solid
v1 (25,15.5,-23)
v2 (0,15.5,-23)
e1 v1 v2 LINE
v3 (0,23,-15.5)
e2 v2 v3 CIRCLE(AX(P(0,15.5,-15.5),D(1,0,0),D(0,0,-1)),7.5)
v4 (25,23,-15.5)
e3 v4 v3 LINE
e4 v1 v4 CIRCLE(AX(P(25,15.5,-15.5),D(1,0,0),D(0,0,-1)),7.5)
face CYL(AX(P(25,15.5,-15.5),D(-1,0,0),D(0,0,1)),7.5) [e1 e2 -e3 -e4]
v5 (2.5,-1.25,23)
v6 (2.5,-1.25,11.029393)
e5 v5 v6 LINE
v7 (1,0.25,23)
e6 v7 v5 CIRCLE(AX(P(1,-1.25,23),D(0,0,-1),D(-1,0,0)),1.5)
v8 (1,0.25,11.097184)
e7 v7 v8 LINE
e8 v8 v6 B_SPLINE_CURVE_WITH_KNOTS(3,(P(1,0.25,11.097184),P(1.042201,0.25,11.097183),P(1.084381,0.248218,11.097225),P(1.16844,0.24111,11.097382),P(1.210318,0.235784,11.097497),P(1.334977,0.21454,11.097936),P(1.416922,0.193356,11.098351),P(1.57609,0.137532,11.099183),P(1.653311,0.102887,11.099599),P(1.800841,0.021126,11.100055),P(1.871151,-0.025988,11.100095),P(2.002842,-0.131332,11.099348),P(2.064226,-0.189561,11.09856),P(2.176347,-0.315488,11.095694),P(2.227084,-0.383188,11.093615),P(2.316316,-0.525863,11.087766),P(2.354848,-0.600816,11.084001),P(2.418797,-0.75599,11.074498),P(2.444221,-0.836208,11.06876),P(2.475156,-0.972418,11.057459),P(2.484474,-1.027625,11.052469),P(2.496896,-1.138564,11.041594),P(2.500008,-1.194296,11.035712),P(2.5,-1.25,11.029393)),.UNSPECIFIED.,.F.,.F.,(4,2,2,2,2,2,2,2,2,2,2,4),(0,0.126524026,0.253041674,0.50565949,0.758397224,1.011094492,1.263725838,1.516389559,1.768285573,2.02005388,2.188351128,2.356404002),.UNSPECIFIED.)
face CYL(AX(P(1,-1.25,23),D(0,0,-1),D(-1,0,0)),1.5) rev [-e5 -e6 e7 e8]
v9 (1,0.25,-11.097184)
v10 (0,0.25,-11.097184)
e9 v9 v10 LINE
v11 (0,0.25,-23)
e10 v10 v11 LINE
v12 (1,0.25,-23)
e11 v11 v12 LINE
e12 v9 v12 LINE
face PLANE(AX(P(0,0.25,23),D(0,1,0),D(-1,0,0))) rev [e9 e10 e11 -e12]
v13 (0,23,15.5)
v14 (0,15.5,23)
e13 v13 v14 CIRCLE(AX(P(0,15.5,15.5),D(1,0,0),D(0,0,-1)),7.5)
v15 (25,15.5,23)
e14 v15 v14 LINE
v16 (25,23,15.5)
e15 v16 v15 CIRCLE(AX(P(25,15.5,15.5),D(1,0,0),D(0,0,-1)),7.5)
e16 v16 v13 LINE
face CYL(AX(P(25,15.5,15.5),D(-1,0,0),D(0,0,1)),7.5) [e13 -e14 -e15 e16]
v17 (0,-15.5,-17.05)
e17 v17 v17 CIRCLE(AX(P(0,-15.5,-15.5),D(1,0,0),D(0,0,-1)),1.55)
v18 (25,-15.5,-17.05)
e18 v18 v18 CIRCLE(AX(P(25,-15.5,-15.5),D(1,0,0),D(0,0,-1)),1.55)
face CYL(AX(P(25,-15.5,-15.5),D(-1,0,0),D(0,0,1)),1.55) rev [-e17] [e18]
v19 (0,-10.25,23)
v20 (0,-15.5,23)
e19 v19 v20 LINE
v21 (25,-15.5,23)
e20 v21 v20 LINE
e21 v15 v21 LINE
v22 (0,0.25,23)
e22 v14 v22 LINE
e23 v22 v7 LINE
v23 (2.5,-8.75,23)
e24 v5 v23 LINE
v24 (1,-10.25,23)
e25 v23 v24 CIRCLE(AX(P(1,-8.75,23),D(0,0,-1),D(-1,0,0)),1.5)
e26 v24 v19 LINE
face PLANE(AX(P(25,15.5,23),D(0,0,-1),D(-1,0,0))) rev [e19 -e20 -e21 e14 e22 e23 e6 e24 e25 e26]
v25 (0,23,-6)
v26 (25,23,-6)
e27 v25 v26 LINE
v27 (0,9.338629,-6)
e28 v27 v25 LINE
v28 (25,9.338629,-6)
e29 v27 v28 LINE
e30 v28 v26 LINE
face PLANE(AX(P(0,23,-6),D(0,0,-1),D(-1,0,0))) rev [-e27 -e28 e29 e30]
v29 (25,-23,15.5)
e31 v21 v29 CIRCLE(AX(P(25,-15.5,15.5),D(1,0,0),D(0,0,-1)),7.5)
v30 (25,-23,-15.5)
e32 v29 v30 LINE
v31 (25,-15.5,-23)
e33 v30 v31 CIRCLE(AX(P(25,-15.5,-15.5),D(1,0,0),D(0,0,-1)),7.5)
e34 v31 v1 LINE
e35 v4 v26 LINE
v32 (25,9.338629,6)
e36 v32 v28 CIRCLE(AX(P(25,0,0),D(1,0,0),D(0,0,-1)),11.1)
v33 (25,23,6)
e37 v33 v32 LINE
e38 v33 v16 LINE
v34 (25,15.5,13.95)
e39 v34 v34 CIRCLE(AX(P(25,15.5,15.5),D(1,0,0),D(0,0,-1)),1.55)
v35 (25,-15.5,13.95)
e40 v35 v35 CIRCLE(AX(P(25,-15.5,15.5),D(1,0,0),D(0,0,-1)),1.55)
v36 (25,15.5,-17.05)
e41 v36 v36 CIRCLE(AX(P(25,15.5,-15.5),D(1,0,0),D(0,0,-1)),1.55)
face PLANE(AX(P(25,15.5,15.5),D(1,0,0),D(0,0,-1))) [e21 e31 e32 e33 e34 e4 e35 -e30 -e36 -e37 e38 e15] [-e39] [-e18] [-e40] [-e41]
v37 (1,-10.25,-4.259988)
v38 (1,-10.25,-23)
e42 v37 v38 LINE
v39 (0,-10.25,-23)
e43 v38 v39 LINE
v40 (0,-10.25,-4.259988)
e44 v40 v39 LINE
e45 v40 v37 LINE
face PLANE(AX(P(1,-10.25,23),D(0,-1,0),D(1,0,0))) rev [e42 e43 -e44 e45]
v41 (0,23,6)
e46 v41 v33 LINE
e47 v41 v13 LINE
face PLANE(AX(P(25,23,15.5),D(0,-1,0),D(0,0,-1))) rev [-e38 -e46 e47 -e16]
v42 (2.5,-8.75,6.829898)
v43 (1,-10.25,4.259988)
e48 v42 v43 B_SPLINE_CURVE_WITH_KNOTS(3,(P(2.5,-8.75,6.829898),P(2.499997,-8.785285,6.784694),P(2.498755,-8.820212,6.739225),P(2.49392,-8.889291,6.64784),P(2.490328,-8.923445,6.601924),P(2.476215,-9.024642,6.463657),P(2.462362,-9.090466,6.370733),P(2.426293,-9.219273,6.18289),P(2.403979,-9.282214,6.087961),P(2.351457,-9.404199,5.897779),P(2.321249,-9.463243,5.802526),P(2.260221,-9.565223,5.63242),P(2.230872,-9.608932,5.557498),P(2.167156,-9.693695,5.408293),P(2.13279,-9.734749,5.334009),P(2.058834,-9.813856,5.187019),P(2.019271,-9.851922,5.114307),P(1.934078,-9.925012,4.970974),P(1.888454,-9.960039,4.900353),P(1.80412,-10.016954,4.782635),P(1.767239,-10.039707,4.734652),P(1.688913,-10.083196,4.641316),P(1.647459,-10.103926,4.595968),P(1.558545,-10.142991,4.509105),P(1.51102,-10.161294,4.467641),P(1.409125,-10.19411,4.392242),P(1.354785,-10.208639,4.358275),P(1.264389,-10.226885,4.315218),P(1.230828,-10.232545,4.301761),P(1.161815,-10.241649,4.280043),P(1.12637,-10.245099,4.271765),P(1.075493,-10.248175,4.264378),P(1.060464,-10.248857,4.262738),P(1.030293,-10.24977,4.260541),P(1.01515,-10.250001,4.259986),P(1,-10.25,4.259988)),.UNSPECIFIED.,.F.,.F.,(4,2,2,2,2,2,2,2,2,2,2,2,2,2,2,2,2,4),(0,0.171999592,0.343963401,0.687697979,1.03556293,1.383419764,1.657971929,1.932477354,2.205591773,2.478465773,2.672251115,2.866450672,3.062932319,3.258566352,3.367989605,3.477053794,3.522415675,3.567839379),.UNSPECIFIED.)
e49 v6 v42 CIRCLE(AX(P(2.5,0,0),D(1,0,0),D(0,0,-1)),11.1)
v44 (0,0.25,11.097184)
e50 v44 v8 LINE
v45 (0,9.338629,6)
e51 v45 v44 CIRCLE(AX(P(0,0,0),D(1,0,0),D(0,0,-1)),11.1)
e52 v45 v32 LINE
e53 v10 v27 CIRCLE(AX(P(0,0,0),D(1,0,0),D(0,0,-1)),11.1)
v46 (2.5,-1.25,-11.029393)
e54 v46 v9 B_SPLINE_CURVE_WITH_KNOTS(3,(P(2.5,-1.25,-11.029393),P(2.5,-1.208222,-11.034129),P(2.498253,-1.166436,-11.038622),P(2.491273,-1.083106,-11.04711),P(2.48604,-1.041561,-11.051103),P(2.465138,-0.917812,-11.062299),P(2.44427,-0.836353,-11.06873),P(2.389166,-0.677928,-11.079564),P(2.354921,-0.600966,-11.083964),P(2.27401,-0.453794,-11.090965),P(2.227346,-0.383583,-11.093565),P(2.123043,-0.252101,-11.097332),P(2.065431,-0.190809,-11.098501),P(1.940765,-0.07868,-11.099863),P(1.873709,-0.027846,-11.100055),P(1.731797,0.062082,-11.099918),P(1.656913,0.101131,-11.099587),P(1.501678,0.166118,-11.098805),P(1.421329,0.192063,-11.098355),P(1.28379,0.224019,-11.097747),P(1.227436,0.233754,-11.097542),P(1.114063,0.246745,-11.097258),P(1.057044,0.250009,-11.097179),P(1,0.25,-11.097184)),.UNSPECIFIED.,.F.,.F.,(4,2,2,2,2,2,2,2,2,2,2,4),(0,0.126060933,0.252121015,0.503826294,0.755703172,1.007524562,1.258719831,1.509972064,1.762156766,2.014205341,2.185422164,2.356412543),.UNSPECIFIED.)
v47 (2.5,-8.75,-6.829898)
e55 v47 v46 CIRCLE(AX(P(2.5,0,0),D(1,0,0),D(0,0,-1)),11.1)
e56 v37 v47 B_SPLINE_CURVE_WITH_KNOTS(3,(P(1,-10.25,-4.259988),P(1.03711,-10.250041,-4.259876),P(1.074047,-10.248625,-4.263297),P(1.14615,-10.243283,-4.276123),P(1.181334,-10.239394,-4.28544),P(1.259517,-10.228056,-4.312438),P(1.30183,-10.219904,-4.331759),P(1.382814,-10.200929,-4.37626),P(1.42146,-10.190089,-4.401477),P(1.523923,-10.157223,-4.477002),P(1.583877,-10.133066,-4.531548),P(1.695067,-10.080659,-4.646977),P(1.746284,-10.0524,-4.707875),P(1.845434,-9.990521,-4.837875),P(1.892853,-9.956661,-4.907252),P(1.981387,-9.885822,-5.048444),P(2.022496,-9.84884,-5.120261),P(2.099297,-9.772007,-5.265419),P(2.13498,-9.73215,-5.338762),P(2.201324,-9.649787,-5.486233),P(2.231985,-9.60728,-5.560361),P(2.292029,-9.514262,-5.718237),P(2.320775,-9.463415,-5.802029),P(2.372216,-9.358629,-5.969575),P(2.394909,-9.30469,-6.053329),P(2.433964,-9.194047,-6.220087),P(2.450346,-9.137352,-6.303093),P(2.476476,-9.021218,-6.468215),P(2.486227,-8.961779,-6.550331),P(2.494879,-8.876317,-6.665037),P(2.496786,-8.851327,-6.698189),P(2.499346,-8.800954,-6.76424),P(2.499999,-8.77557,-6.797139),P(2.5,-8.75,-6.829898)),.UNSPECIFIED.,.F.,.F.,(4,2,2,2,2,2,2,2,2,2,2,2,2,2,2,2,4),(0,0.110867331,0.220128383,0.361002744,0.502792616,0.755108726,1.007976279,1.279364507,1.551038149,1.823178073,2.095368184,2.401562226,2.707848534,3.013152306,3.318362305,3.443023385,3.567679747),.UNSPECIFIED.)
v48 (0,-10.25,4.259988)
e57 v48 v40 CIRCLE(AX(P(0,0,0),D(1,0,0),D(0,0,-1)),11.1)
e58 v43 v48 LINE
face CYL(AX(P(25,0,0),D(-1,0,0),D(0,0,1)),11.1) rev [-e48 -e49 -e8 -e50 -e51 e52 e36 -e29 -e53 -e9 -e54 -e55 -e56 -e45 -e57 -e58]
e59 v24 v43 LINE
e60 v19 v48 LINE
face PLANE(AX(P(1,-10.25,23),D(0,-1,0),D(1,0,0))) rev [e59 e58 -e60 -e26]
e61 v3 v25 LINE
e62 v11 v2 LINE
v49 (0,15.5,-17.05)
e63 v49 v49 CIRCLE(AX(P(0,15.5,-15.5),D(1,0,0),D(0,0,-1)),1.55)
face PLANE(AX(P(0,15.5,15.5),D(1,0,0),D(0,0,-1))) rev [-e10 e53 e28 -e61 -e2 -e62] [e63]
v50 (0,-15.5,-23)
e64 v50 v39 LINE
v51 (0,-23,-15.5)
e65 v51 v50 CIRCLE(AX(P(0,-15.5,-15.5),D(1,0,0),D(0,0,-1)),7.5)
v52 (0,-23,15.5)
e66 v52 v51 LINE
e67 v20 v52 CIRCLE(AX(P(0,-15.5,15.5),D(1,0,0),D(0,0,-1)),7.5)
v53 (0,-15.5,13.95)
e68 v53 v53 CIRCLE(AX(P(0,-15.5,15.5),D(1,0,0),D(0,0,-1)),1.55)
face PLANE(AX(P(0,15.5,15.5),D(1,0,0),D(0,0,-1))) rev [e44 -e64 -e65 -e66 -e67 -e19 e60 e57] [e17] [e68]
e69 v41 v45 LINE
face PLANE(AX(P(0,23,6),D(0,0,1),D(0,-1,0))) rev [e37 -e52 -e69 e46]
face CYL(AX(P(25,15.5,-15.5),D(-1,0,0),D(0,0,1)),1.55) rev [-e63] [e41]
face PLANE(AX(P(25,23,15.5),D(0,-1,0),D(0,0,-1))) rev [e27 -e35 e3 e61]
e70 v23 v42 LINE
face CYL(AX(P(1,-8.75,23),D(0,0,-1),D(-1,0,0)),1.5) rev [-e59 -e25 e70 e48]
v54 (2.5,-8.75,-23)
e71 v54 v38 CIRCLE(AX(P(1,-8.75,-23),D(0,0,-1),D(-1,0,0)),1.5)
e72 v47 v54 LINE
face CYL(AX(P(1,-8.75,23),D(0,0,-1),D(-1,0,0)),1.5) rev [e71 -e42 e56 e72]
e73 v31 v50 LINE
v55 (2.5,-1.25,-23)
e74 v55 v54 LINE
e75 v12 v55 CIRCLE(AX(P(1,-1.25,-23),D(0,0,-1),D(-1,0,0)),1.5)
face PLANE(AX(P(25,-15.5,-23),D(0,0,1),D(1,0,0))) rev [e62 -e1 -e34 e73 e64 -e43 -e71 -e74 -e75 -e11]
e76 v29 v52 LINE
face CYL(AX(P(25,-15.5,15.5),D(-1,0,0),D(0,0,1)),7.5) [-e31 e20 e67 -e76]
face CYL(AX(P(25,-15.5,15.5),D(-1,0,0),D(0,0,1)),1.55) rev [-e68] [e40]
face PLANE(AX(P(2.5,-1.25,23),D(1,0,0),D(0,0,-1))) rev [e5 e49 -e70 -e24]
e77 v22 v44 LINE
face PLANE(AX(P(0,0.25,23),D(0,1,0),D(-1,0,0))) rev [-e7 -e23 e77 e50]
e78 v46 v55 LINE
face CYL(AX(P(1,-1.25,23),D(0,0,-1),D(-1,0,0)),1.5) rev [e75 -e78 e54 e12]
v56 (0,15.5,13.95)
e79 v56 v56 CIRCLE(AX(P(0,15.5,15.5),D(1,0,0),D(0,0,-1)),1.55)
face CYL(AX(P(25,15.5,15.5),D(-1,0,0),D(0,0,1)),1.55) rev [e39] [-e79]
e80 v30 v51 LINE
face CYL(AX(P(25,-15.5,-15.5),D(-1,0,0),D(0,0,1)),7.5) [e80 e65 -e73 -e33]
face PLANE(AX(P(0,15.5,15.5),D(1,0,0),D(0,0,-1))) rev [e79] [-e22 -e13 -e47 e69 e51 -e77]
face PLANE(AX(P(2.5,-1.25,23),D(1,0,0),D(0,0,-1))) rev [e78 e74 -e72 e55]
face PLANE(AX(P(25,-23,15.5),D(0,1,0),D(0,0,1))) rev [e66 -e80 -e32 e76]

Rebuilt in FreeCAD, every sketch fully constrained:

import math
import FreeCAD as App
import Part
import Sketcher
from FreeCAD import Vector
Q = App.Units.Quantity

doc = App.newDocument("Part")
body = doc.addObject("PartDesign::Body", "Body")

# Sketch on YZ plane
sketch1 = body.newObject("Sketcher::SketchObject", "Sketch")
sketch1.AttachmentSupport = (doc.getObject("YZ_Plane"), [""])
sketch1.MapMode = "FlatFace"
sketch1.addGeometry(Part.LineSegment(Vector(23, -15.5, 0), Vector(23, 15.5, 0)), False)
sketch1.addGeometry(Part.ArcOfCircle(Part.Circle(Vector(15.5, 15.5, 0), Vector(0, 0, 1), 7.5), math.radians(0), math.radians(90)), False)
sketch1.addGeometry(Part.LineSegment(Vector(15.5, 23, 0), Vector(-15.5, 23, 0)), False)
sketch1.addGeometry(Part.ArcOfCircle(Part.Circle(Vector(-15.5, 15.5, 0), Vector(0, 0, 1), 7.5), math.radians(90), math.radians(180)), False)
sketch1.addGeometry(Part.LineSegment(Vector(-23, 15.5, 0), Vector(-23, -15.5, 0)), False)
sketch1.addGeometry(Part.ArcOfCircle(Part.Circle(Vector(-15.5, -15.5, 0), Vector(0, 0, 1), 7.5), math.radians(180), math.radians(270)), False)
sketch1.addGeometry(Part.LineSegment(Vector(-15.5, -23, 0), Vector(15.5, -23, 0)), False)
sketch1.addGeometry(Part.ArcOfCircle(Part.Circle(Vector(15.5, -15.5, 0), Vector(0, 0, 1), 7.5), math.radians(-90), math.radians(0)), False)
sketch1.addGeometry(Part.Circle(Vector(-15.5, -15.5, 0), Vector(0, 0, 1), 1.6), False)
sketch1.addGeometry(Part.Circle(Vector(-15.5, 15.5, 0), Vector(0, 0, 1), 1.6), False)
sketch1.addGeometry(Part.Circle(Vector(15.5, -15.5, 0), Vector(0, 0, 1), 1.6), False)
sketch1.addGeometry(Part.Circle(Vector(0, 0, 0), Vector(0, 0, 1), 11.1), False)
sketch1.addGeometry(Part.Circle(Vector(15.5, 15.5, 0), Vector(0, 0, 1), 1.6), False)
sketch1.addConstraint(Sketcher.Constraint("Tangent", 0, 2, 1, 1))
sketch1.addConstraint(Sketcher.Constraint("Tangent", 1, 2, 2, 1))
sketch1.addConstraint(Sketcher.Constraint("Tangent", 2, 2, 3, 1))
sketch1.addConstraint(Sketcher.Constraint("Tangent", 3, 2, 4, 1))
sketch1.addConstraint(Sketcher.Constraint("Tangent", 4, 2, 5, 1))
sketch1.addConstraint(Sketcher.Constraint("Tangent", 5, 2, 6, 1))
sketch1.addConstraint(Sketcher.Constraint("Tangent", 6, 2, 7, 1))
sketch1.addConstraint(Sketcher.Constraint("Tangent", 7, 2, 0, 1))
sketch1.addConstraint(Sketcher.Constraint("Vertical", 0))
sketch1.addConstraint(Sketcher.Constraint("Horizontal", 2))
sketch1.addConstraint(Sketcher.Constraint("Vertical", 4))
sketch1.addConstraint(Sketcher.Constraint("Horizontal", 6))
sketch1.addConstraint(Sketcher.Constraint("Coincident", 11, 3, -1, 1))
sketch1.addConstraint(Sketcher.Constraint("Coincident", 8, 3, 5, 3))
sketch1.addConstraint(Sketcher.Constraint("Coincident", 9, 3, 3, 3))
sketch1.addConstraint(Sketcher.Constraint("Coincident", 10, 3, 7, 3))
sketch1.addConstraint(Sketcher.Constraint("Coincident", 12, 3, 1, 3))
sketch1.addConstraint(Sketcher.Constraint("Equal", 1, 3))
sketch1.addConstraint(Sketcher.Constraint("Equal", 3, 5))
sketch1.addConstraint(Sketcher.Constraint("Equal", 5, 7))
sketch1.addConstraint(Sketcher.Constraint("Equal", 8, 9))
sketch1.addConstraint(Sketcher.Constraint("Equal", 9, 10))
sketch1.addConstraint(Sketcher.Constraint("Equal", 10, 12))
sketch1.addConstraint(Sketcher.Constraint("Symmetric", 1, 3, 5, 3, -1, 1))
sketch1.addConstraint(Sketcher.Constraint("Equal", 6, 0))
sketch1.addConstraint(Sketcher.Constraint("Diameter", 8, Q("3.1 mm")))
sketch1.addConstraint(Sketcher.Constraint("Diameter", 11, Q("22.2 mm")))
sketch1.addConstraint(Sketcher.Constraint("Radius", 1, Q("7.5 mm")))
sketch1.addConstraint(Sketcher.Constraint("DistanceX", 2, 2, 2, 1, Q("31 mm")))
pad1 = body.newObject("PartDesign::Pad", "Pad")
pad1.Profile = sketch1
pad1.Length = 25

# Sketch on YZ plane
sketch2 = body.newObject("Sketcher::SketchObject", "Sketch001")
sketch2.AttachmentSupport = (doc.getObject("YZ_Plane"), [""])
sketch2.MapMode = "FlatFace"
sketch2.AttachmentOffset = App.Placement(Vector(0, 0, 25), App.Rotation())
sketch2.addGeometry(Part.LineSegment(Vector(23, 6, 0), Vector(9, 6, 0)), False)
sketch2.addGeometry(Part.ArcOfCircle(Part.Circle(Vector(0, 0, 0), Vector(0, 0, 1), 11), math.radians(-33), math.radians(33)), False)
sketch2.addGeometry(Part.LineSegment(Vector(9, -6, 0), Vector(23, -6, 0)), False)
sketch2.addGeometry(Part.LineSegment(Vector(23, -6, 0), Vector(23, 6, 0)), False)
sketch2.addConstraint(Sketcher.Constraint("Coincident", 0, 2, 1, 2))
sketch2.addConstraint(Sketcher.Constraint("Coincident", 1, 1, 2, 1))
sketch2.addConstraint(Sketcher.Constraint("Coincident", 2, 2, 3, 1))
sketch2.addConstraint(Sketcher.Constraint("Coincident", 3, 2, 0, 1))
sketch2.addConstraint(Sketcher.Constraint("Horizontal", 0))
sketch2.addConstraint(Sketcher.Constraint("Horizontal", 2))
sketch2.addConstraint(Sketcher.Constraint("Vertical", 3))
sketch2.addConstraint(Sketcher.Constraint("Coincident", 1, 3, -1, 1))
sketch2.addConstraint(Sketcher.Constraint("Vertical", 0, 2, 1, 1))
sketch2.addConstraint(Sketcher.Constraint("Radius", 1, Q("11.1 mm")))
sketch2.addConstraint(Sketcher.Constraint("DistanceY", 3, 1, 3, 2, Q("12 mm")))
sketch2.addConstraint(Sketcher.Constraint("DistanceX", -1, 1, 2, 2, Q("23 mm")))
pocket1 = body.newObject("PartDesign::Pocket", "Pocket")
pocket1.Profile = sketch2
pocket1.Type = "ThroughAll"

# Sketch on XY plane
sketch3 = body.newObject("Sketcher::SketchObject", "Sketch002")
sketch3.AttachmentSupport = (doc.getObject("XY_Plane"), [""])
sketch3.MapMode = "FlatFace"
sketch3.AttachmentOffset = App.Placement(Vector(0, 0, -23), App.Rotation())
sketch3.addGeometry(Part.LineSegment(Vector(0, 0.2, 0), Vector(1, 0.2, 0)), False)
sketch3.addGeometry(Part.ArcOfCircle(Part.Circle(Vector(1, -1.2, 0), Vector(0, 0, 1), 1.5), math.radians(0), math.radians(90)), False)
sketch3.addGeometry(Part.LineSegment(Vector(2.5, -1.2, 0), Vector(2.5, -8.8, 0)), False)
sketch3.addGeometry(Part.ArcOfCircle(Part.Circle(Vector(1, -8.8, 0), Vector(0, 0, 1), 1.5), math.radians(-90), math.radians(0)), False)
sketch3.addGeometry(Part.LineSegment(Vector(1, -10.2, 0), Vector(0, -10.2, 0)), False)
sketch3.addGeometry(Part.LineSegment(Vector(0, -10.2, 0), Vector(0, 0.2, 0)), False)
sketch3.addConstraint(Sketcher.Constraint("Tangent", 0, 2, 1, 2))
sketch3.addConstraint(Sketcher.Constraint("Tangent", 1, 1, 2, 1))
sketch3.addConstraint(Sketcher.Constraint("Tangent", 2, 2, 3, 2))
sketch3.addConstraint(Sketcher.Constraint("Tangent", 3, 1, 4, 1))
sketch3.addConstraint(Sketcher.Constraint("Coincident", 4, 2, 5, 1))
sketch3.addConstraint(Sketcher.Constraint("Coincident", 5, 2, 0, 1))
sketch3.addConstraint(Sketcher.Constraint("Horizontal", 0))
sketch3.addConstraint(Sketcher.Constraint("Vertical", 2))
sketch3.addConstraint(Sketcher.Constraint("Horizontal", 4))
sketch3.addConstraint(Sketcher.Constraint("Vertical", 5))
sketch3.addConstraint(Sketcher.Constraint("Equal", 1, 3))
sketch3.addConstraint(Sketcher.Constraint("PointOnObject", 4, 2, -2))
sketch3.addConstraint(Sketcher.Constraint("Radius", 1, Q("1.5 mm")))
sketch3.addConstraint(Sketcher.Constraint("DistanceX", 0, 1, 0, 2, Q("1 mm")))
sketch3.addConstraint(Sketcher.Constraint("DistanceY", 2, 2, 2, 1, Q("7.5 mm")))
sketch3.addConstraint(Sketcher.Constraint("DistanceY", 1, 3, -1, 1, Q("1.25 mm")))
pocket2 = body.newObject("PartDesign::Pocket", "Pocket001")
pocket2.Profile = sketch3
pocket2.Type = "ThroughAll"
pocket2.Reversed = True

doc.recompute()
